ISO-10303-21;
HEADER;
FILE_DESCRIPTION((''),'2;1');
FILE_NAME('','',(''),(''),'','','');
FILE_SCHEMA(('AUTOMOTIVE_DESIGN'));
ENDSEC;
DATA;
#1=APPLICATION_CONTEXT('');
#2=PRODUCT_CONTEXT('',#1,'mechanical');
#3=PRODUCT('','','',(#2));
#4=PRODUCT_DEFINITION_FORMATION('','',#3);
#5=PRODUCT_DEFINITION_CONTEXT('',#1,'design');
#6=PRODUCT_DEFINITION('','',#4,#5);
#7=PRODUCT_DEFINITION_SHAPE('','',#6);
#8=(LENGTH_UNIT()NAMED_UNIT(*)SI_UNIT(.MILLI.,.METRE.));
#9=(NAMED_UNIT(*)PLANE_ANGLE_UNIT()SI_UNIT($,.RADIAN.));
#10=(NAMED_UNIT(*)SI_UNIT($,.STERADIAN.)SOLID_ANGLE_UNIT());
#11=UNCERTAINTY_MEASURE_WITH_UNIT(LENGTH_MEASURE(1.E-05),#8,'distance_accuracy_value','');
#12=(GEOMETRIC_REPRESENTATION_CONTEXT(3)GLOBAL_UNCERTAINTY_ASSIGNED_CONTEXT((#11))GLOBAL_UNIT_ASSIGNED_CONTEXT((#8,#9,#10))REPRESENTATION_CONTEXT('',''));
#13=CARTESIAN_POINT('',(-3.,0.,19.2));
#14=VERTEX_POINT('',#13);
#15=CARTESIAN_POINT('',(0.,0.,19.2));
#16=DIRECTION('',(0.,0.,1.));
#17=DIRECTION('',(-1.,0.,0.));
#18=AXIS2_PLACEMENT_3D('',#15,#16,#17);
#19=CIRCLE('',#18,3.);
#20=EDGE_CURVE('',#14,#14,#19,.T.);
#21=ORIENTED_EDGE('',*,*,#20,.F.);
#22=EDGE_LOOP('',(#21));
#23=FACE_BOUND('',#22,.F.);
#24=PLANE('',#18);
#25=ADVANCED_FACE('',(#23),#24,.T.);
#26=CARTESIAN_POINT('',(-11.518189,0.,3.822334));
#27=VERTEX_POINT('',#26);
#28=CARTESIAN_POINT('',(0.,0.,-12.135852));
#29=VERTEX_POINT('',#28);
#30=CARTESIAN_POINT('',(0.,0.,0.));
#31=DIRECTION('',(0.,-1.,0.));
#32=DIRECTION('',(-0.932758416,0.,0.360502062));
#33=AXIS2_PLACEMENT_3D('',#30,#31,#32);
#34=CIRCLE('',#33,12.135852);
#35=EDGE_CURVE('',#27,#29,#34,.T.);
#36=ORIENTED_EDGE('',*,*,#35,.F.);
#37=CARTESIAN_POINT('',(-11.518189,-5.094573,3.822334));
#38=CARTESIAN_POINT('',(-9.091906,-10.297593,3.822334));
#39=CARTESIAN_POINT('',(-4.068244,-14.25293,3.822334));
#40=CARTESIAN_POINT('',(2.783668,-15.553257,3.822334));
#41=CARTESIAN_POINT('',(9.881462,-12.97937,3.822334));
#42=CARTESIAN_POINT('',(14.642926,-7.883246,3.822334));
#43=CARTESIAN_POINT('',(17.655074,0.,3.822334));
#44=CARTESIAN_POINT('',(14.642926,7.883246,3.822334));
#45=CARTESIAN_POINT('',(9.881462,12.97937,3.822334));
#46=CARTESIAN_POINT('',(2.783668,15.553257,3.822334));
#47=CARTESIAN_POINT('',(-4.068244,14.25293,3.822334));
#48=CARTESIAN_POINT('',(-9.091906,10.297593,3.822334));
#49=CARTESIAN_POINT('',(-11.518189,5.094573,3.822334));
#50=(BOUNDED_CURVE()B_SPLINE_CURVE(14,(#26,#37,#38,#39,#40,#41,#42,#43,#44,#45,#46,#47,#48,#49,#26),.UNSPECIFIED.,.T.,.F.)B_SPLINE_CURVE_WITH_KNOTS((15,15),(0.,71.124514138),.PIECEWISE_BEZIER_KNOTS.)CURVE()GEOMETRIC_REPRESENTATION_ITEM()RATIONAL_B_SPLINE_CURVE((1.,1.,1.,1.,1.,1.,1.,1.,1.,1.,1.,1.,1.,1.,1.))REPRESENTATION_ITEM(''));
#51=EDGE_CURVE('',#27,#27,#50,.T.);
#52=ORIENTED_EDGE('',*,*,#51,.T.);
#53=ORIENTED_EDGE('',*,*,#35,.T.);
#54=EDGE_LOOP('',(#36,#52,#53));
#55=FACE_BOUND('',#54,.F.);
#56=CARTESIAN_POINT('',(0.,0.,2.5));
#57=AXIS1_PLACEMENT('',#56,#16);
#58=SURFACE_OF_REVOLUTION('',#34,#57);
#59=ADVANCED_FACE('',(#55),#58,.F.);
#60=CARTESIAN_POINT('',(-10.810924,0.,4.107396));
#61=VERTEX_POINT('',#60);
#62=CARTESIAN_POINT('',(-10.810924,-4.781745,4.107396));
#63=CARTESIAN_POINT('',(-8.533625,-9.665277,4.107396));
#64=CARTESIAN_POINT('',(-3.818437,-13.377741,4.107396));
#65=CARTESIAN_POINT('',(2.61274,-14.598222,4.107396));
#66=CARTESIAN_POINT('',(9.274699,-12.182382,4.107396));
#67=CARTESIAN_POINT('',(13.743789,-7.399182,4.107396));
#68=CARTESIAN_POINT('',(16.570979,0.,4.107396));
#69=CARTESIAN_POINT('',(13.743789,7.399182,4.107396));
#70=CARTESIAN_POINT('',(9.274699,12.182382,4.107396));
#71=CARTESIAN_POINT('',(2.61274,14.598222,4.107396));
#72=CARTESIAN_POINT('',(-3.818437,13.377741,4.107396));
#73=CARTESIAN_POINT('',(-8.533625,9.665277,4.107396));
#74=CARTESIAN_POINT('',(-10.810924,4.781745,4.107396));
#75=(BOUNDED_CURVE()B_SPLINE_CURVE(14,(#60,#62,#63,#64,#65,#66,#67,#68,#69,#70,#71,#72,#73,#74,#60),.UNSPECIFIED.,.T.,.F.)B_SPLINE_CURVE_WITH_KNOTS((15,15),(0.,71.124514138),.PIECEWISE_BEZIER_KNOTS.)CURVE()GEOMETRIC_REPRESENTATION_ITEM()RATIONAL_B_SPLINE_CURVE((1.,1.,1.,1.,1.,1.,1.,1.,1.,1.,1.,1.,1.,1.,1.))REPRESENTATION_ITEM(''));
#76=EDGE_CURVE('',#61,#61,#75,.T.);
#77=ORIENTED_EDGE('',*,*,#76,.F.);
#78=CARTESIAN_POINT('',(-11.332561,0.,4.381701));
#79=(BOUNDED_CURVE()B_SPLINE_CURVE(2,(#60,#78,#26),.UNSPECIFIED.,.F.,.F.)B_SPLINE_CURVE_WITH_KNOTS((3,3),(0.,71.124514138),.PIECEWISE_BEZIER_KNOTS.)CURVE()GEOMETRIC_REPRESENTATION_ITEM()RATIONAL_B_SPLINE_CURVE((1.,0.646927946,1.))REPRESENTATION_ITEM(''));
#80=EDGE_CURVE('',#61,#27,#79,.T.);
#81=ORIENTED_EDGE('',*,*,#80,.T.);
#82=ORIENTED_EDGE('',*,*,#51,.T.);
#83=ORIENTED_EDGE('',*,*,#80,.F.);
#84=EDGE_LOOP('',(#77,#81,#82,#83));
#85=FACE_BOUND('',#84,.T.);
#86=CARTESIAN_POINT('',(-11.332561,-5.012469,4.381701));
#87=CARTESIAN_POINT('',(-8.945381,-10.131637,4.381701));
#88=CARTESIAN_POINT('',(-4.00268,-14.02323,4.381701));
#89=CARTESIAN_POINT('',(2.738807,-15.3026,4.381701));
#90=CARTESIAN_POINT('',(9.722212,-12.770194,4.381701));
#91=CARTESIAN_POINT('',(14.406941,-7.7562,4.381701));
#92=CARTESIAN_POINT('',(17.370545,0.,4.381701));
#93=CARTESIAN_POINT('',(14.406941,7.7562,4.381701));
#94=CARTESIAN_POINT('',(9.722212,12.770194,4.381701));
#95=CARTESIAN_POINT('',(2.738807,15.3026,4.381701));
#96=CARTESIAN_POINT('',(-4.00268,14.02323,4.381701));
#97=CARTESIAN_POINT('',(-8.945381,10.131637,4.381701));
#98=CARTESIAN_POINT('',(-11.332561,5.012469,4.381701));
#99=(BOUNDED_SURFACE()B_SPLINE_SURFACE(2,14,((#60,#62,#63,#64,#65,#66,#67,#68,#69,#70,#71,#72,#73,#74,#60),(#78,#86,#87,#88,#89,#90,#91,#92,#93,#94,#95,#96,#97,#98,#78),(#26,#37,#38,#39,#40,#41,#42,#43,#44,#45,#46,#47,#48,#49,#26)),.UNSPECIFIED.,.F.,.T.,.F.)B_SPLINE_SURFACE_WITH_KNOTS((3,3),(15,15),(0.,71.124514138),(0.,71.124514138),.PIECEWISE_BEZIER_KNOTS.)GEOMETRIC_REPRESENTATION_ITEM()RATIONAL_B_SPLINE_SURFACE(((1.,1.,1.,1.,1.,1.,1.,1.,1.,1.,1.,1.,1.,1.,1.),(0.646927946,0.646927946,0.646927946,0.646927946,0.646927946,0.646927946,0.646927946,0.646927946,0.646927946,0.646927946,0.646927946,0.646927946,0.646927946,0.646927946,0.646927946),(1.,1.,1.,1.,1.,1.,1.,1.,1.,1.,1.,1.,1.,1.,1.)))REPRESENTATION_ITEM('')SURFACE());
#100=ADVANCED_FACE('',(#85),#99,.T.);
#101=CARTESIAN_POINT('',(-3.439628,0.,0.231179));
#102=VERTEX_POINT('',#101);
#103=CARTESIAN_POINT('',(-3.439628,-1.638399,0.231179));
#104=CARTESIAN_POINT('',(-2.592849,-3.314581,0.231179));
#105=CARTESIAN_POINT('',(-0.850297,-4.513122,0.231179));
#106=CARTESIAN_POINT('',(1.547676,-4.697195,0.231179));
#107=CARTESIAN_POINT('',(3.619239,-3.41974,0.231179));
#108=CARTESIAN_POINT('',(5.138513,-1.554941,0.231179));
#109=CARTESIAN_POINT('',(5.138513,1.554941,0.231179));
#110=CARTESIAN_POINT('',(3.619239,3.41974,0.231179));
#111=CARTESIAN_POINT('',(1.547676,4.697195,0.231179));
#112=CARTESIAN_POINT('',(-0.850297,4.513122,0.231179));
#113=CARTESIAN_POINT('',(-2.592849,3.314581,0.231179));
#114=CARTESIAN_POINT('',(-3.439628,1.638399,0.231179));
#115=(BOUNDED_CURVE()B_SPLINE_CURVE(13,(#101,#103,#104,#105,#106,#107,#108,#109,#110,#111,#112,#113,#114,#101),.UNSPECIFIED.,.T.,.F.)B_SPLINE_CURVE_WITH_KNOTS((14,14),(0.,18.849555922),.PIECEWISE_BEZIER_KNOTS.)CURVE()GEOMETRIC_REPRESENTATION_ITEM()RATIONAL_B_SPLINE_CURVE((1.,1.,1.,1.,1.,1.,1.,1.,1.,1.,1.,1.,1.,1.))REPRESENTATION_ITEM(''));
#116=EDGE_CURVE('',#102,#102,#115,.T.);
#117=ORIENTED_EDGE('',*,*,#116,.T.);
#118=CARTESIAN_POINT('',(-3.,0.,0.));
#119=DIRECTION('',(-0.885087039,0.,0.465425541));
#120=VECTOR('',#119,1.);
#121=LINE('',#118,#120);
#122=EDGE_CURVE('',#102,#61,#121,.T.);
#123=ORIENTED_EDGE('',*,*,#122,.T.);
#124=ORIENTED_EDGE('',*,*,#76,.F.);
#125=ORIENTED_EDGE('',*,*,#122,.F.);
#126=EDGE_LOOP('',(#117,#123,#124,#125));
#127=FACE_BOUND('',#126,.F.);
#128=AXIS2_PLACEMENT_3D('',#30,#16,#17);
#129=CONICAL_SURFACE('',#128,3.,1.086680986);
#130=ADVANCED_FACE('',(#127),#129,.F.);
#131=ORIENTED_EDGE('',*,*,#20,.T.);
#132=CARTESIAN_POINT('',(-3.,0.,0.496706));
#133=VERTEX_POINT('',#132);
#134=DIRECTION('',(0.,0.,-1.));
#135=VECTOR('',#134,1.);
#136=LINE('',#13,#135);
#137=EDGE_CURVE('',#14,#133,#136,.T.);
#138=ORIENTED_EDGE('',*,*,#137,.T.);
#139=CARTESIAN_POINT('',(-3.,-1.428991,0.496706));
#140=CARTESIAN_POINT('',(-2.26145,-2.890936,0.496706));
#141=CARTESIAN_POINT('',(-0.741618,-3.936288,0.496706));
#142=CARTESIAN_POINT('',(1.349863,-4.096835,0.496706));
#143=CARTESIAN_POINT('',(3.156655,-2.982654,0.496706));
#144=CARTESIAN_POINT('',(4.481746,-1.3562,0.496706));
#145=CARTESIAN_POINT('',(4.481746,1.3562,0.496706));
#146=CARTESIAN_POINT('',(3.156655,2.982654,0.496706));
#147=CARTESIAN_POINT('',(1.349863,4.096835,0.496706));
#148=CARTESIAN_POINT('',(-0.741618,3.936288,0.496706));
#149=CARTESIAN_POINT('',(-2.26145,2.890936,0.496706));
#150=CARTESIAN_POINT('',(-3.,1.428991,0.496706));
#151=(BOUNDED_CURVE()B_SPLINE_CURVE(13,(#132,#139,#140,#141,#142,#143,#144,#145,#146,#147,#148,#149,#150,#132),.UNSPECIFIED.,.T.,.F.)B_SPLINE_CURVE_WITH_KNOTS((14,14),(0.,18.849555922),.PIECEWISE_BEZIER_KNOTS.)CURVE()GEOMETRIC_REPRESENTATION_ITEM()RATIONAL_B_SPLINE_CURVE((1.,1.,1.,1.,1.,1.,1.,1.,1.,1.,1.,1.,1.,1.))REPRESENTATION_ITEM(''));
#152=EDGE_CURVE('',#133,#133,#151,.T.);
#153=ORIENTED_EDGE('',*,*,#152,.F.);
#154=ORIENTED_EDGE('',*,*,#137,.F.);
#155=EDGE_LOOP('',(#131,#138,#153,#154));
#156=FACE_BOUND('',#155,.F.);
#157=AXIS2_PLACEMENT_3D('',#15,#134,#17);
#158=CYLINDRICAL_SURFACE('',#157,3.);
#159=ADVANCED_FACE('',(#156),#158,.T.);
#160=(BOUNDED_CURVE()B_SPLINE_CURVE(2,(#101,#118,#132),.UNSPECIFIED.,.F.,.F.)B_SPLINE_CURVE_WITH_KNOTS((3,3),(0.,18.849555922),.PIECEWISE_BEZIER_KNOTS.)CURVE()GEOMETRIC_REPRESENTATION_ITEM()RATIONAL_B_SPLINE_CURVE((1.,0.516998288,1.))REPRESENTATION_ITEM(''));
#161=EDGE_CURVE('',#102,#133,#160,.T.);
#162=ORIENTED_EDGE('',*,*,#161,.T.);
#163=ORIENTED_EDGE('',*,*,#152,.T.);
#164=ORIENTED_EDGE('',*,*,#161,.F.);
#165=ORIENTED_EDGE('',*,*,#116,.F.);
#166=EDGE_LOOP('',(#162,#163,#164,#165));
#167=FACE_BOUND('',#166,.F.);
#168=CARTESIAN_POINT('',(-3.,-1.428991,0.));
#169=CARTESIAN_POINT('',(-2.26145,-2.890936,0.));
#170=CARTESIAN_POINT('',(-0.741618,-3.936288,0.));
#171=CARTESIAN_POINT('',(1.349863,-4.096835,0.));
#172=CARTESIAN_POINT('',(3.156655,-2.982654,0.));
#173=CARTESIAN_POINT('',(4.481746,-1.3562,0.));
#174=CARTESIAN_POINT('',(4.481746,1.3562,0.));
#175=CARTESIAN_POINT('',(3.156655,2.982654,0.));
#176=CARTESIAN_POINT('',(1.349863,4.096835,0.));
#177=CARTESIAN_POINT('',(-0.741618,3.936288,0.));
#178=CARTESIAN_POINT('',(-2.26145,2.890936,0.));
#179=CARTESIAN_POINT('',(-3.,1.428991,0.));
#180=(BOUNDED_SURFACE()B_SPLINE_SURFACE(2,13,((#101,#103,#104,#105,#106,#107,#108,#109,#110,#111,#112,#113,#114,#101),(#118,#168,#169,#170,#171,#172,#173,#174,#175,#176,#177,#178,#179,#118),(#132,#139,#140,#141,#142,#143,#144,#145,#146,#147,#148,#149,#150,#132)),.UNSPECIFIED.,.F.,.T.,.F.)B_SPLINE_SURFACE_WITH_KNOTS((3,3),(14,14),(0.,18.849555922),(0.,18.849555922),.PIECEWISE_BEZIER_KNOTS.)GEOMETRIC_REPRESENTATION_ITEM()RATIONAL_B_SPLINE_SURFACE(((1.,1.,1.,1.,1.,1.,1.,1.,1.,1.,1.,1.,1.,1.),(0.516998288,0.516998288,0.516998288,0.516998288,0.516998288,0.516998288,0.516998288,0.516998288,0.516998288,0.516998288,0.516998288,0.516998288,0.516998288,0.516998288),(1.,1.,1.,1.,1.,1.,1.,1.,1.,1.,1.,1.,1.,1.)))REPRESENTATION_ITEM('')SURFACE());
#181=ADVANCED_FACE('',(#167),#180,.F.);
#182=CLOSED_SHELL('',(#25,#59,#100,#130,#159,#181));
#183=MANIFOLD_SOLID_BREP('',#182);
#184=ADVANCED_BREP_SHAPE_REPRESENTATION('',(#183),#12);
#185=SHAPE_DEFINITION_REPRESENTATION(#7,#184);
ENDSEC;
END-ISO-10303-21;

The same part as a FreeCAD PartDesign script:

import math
import FreeCAD as App
import Part
import Sketcher


def edges_at(feature, points):
    """Names of the edges that pass closest to the given points."""
    edges = feature.Shape.Edges
    near = lambda p: min(range(len(edges)), key=lambda i: edges[i].distToShape(Part.Vertex(*p))[0])
    return sorted({f"Edge{near(p) + 1}" for p in points})

doc = App.newDocument("Part")
body = doc.addObject("PartDesign::Body", "Body")

# Sketch on XZ plane
sketch1 = body.newObject("Sketcher::SketchObject", "Sketch")
sketch1.AttachmentSupport = (doc.getObject("XZ_Plane"), [""])
sketch1.MapMode = "FlatFace"
sketch1.addGeometry(Part.LineSegment(App.Vector(0, -12.1, 0), App.Vector(0, 19.2, 0)), False)
sketch1.addGeometry(Part.LineSegment(App.Vector(0, 19.2, 0), App.Vector(-3, 19.2, 0)), False)
sketch1.addGeometry(Part.LineSegment(App.Vector(-3, 19.2, 0), App.Vector(-3, 0, 0)), False)
sketch1.addGeometry(Part.LineSegment(App.Vector(-3, 0, 0), App.Vector(-11.3, 4.4, 0)), False)
sketch1.addGeometry(Part.ArcOfCircle(Part.Circle(App.Vector(0, 0, 0), App.Vector(0, 0, 1), 12.1), math.radians(159), math.radians(270)), False)
sketch1.addConstraint(Sketcher.Constraint("Coincident", 0, 2, 1, 1))
sketch1.addConstraint(Sketcher.Constraint("Coincident", 1, 2, 2, 1))
sketch1.addConstraint(Sketcher.Constraint("Coincident", 2, 2, 3, 1))
sketch1.addConstraint(Sketcher.Constraint("Coincident", 3, 2, 4, 1))
sketch1.addConstraint(Sketcher.Constraint("Coincident", 4, 2, 0, 1))
sketch1.addConstraint(Sketcher.Constraint("Vertical", 0))
sketch1.addConstraint(Sketcher.Constraint("Horizontal", 1))
sketch1.addConstraint(Sketcher.Constraint("Vertical", 2))
sketch1.addConstraint(Sketcher.Constraint("Coincident", 4, 3, -1, 1))
sketch1.addConstraint(Sketcher.Constraint("PointOnObject", 0, 2, -2))
sketch1.addConstraint(Sketcher.Constraint("PointOnObject", 2, 2, -1))
sketch1.addConstraint(Sketcher.Constraint("DistanceX", 1, 2, 1, 1, 3.0))
sketch1.addConstraint(Sketcher.Constraint("DistanceY", 2, 2, 2, 1, 19.2))
sketch1.addConstraint(Sketcher.Constraint("Distance", 3, 9.4))
sketch1.addConstraint(Sketcher.Constraint("DistanceY", -1, 1, 3, 2, 4.375))
revolution = body.newObject("PartDesign::Revolution", "Revolution")
revolution.Profile = sketch1
revolution.ReferenceAxis = (sketch1, ["V_Axis"])
revolution.Angle = 360
doc.recompute()

fillet = body.newObject("PartDesign::Fillet", "Fillet")
fillet.Base = (revolution, edges_at(revolution, [(11.32, 0, 4.375)]))
fillet.Radius = 0.5
doc.recompute()

fillet2 = body.newObject("PartDesign::Fillet", "Fillet001")
fillet2.Base = (fillet, edges_at(fillet, [(3, 0, 0)]))
fillet2.Radius = 0.3

doc.recompute()
